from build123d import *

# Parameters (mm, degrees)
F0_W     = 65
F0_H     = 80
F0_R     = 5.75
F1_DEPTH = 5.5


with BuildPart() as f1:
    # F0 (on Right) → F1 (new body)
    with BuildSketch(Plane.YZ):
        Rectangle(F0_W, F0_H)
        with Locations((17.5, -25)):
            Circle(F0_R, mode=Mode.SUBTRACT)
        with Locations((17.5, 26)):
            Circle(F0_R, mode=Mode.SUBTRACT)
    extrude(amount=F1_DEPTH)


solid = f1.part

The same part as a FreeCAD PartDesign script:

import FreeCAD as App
import Part
import Sketcher
from FreeCAD import Vector

doc = App.newDocument("Part")
body = doc.addObject("PartDesign::Body", "Body")

# Sketch on YZ plane
sketch1 = doc.addObject("Sketcher::SketchObject", "Sketch")
body.addObject(sketch1)
sketch1.AttachmentSupport = (doc.YZ_Plane, [""])
sketch1.MapMode = "FlatFace"
sketch1.addGeometry(Part.LineSegment(Vector(-32, 40, 0), Vector(-32, -40, 0)), False)
sketch1.addGeometry(Part.LineSegment(Vector(-32, -40, 0), Vector(32, -40, 0)), False)
sketch1.addGeometry(Part.LineSegment(Vector(32, -40, 0), Vector(32, 40, 0)), False)
sketch1.addGeometry(Part.LineSegment(Vector(32, 40, 0), Vector(-32, 40, 0)), False)
sketch1.addGeometry(Part.Circle(Vector(18, -25, 0), Vector(0, 0, 1), 6), False)
sketch1.addGeometry(Part.Circle(Vector(18, 26, 0), Vector(0, 0, 1), 6), False)
sketch1.addConstraint(Sketcher.Constraint("Coincident", 0, 2, 1, 1))
sketch1.addConstraint(Sketcher.Constraint("Coincident", 1, 2, 2, 1))
sketch1.addConstraint(Sketcher.Constraint("Coincident", 2, 2, 3, 1))
sketch1.addConstraint(Sketcher.Constraint("Coincident", 3, 2, 0, 1))
sketch1.addConstraint(Sketcher.Constraint("Vertical", 0))
sketch1.addConstraint(Sketcher.Constraint("Horizontal", 1))
sketch1.addConstraint(Sketcher.Constraint("Vertical", 2))
sketch1.addConstraint(Sketcher.Constraint("Horizontal", 3))
sketch1.addConstraint(Sketcher.Constraint("Equal", 4, 5))
sketch1.addConstraint(Sketcher.Constraint("Symmetric", 0, 2, 2, 2, -1, 1))
sketch1.addConstraint(Sketcher.Constraint("Vertical", 4, 3, 5, 3))
sketch1.addConstraint(Sketcher.Constraint("Diameter", 4, 11.5))
sketch1.addConstraint(Sketcher.Constraint("DistanceX", 1, 1, 1, 2, 65.0))
sketch1.addConstraint(Sketcher.Constraint("DistanceY", 0, 2, 0, 1, 80.0))
sketch1.addConstraint(Sketcher.Constraint("DistanceY", 4, 3, -1, 1, 25.0))
sketch1.addConstraint(Sketcher.Constraint("DistanceY", -1, 1, 5, 3, 26.0))
sketch1.addConstraint(Sketcher.Constraint("DistanceX", 0, 2, 4, 3, 50.0))
pad1 = doc.addObject("PartDesign::Pad", "Pad")
body.addObject(pad1)
pad1.Profile = sketch1
pad1.Length = 5.5

doc.recompute()
